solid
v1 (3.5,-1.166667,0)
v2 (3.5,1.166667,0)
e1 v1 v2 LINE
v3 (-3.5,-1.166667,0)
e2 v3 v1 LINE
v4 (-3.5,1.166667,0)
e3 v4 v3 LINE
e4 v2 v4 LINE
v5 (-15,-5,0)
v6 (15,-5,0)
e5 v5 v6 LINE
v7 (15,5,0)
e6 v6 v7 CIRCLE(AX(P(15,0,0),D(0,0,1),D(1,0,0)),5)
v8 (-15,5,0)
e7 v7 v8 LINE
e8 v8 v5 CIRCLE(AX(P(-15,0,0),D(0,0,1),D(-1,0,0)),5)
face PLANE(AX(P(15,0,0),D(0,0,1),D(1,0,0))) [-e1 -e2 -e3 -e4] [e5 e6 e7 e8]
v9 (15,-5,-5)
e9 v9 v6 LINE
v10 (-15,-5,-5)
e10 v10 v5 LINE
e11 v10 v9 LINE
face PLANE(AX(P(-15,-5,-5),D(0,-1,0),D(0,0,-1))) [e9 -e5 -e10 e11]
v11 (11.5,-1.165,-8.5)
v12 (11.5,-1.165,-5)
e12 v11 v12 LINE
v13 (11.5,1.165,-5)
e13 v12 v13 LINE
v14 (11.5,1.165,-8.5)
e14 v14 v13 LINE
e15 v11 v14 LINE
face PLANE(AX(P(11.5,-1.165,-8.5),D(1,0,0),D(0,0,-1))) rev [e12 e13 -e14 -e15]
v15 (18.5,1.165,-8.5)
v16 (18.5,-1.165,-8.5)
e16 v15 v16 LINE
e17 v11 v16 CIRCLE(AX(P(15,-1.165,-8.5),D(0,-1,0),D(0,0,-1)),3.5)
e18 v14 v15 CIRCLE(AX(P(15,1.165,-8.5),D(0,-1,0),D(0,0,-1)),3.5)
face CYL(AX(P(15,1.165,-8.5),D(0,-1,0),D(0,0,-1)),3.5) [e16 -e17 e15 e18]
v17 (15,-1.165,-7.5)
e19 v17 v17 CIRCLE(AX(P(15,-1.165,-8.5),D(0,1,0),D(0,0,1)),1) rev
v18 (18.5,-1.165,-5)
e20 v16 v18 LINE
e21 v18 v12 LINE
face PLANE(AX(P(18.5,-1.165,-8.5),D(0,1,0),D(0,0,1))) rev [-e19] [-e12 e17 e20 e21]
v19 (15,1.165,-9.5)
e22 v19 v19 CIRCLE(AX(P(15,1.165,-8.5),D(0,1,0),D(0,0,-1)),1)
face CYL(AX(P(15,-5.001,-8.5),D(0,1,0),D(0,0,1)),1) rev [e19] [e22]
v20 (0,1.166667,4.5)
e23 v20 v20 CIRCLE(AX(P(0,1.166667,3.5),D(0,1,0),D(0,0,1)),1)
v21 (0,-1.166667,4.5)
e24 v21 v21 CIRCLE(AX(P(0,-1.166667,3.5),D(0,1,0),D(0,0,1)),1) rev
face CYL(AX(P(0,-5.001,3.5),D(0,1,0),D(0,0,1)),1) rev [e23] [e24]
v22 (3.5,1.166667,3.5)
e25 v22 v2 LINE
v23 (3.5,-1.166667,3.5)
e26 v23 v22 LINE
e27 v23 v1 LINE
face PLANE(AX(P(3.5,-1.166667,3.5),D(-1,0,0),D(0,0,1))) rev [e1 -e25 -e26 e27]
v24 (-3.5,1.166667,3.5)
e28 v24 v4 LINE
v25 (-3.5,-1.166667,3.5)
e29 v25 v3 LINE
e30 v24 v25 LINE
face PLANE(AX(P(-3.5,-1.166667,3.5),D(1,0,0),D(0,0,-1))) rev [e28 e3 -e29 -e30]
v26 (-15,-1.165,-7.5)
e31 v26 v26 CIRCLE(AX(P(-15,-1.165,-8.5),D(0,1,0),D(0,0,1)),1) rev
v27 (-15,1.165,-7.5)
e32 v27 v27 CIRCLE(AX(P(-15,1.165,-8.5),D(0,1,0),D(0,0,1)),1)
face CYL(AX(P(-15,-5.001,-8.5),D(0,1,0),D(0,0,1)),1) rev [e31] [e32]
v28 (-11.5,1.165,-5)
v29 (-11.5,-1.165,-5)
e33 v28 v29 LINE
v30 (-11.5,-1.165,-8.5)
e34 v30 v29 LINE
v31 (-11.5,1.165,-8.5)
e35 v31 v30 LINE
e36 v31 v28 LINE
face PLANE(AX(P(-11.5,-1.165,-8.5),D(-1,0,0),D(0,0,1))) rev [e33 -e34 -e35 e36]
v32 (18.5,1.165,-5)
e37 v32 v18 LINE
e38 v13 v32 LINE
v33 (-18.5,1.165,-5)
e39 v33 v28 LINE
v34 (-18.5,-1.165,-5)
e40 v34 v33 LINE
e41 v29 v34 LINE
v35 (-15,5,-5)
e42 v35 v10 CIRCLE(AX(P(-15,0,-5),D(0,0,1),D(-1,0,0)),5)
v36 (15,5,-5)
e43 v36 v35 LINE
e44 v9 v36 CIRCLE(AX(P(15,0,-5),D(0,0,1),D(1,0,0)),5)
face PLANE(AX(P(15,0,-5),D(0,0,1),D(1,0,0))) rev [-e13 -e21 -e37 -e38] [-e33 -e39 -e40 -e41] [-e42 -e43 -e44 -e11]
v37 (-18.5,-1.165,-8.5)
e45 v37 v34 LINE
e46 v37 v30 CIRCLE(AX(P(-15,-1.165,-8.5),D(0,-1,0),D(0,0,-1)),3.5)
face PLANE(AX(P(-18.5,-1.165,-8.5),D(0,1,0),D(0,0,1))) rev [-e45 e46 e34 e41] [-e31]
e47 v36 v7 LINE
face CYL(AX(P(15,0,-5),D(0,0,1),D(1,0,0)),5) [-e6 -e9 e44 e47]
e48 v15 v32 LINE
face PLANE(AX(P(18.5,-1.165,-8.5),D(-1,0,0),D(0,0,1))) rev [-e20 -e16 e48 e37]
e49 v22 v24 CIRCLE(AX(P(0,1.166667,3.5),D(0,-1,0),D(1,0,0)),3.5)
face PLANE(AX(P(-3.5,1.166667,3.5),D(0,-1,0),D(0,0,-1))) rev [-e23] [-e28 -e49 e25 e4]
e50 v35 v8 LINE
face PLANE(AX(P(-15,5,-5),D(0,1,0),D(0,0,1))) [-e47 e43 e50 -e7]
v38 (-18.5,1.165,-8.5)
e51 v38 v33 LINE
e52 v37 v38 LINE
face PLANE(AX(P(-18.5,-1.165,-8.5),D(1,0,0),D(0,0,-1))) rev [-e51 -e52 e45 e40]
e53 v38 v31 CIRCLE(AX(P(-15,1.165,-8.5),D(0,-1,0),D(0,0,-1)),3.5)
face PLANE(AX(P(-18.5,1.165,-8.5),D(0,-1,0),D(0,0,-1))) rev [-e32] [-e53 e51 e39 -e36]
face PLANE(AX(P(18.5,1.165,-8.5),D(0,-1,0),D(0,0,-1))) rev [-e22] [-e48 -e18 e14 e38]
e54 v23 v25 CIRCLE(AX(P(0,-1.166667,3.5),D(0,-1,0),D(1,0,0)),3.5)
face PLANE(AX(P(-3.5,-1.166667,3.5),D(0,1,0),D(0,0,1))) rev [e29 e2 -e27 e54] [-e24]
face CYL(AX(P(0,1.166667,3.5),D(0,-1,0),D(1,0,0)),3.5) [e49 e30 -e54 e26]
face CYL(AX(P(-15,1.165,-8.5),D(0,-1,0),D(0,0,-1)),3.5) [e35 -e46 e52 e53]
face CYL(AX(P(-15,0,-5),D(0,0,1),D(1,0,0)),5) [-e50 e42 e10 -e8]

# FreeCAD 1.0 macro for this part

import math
import FreeCAD as App
import Part
import Sketcher
from FreeCAD import Vector
Q = App.Units.Quantity

doc = App.newDocument("Part")
params = doc.addObject("Spreadsheet::Sheet", "Params")
for row, (alias, value) in enumerate([
    ("sketch1_radius", "5 mm"),
    ("sketch1_width", "30 mm"),
    ("pad1_length", "5 mm"),
    ("sketch2_width", "7 mm"),
    ("pad2_length", "3.5 mm"),
    ("sketch3_width", "3.5 mm"),
    ("revolution_angle", "180 deg"),
    ("sketch4_diameter", "2 mm"),
    ("sketch5_width", "7 mm"),
    ("sketch5_height", "2.33 mm"),
    ("pad3_length", "3.5 mm"),
    ("sketch6_width", "3.5 mm"),
    ("sketch6_height", "2.33 mm"),
    ("revolution2_angle", "180 deg"),
    ("sketch7_width", "3.5 mm"),
    ("sketch7_height", "2.33 mm"),
    ("revolution3_angle", "180 deg"),
    ("sketch8_diameter", "2 mm"),
    ("sketch9_diameter", "2 mm"),
], start=1):
    params.set(f"A{row}", alias)
    params.set(f"B{row}", "=" + value)
    params.setAlias(f"B{row}", alias)

body = doc.addObject("PartDesign::Body", "Body")

# Sketch on XY plane
sketch1 = body.newObject("Sketcher::SketchObject", "Sketch")
sketch1.AttachmentSupport = (doc.getObject("XY_Plane"), [""])
sketch1.MapMode = "FlatFace"
sketch1.addGeometry(Part.LineSegment(Vector(-15, -5, 0), Vector(15, -5, 0)), False)
sketch1.addGeometry(Part.ArcOfCircle(Part.Circle(Vector(15, 0, 0), Vector(0, 0, 1), 5), math.radians(-90), math.radians(90)), False)
sketch1.addGeometry(Part.LineSegment(Vector(15, 5, 0), Vector(-15, 5, 0)), False)
sketch1.addGeometry(Part.ArcOfCircle(Part.Circle(Vector(-15, 0, 0), Vector(0, 0, 1), 5), math.radians(90), math.radians(270)), False)
sketch1.addConstraint(Sketcher.Constraint("Tangent", 0, 2, 1, 1))
sketch1.addConstraint(Sketcher.Constraint("Tangent", 1, 2, 2, 1))
sketch1.addConstraint(Sketcher.Constraint("Tangent", 2, 2, 3, 1))
sketch1.addConstraint(Sketcher.Constraint("Tangent", 3, 2, 0, 1))
sketch1.addConstraint(Sketcher.Constraint("Horizontal", 0))
sketch1.addConstraint(Sketcher.Constraint("Horizontal", 2))
sketch1.addConstraint(Sketcher.Constraint("Symmetric", 1, 3, 3, 3, -1, 1))
sketch1.addConstraint(Sketcher.Constraint("Radius", 1, Q("5 mm")))
sketch1.addConstraint(Sketcher.Constraint("DistanceX", 0, 1, 0, 2, Q("30 mm")))
sketch1.setExpression("Constraints[7]", "Params.sketch1_radius")
sketch1.setExpression("Constraints[8]", "Params.sketch1_width")
pad1 = body.newObject("PartDesign::Pad", "Pad")
pad1.Profile = sketch1
pad1.setExpression("Length", "Params.pad1_length")
pad1.Reversed = True

# Sketch on XY plane
sketch2 = body.newObject("Sketcher::SketchObject", "Sketch001")
sketch2.AttachmentSupport = (doc.getObject("XY_Plane"), [""])
sketch2.MapMode = "FlatFace"
sketch2.addGeometry(Part.LineSegment(Vector(-3.5, 1.2, 0), Vector(-3.5, -1.2, 0)), False)
sketch2.addGeometry(Part.LineSegment(Vector(-3.5, -1.2, 0), Vector(3.5, -1.2, 0)), False)
sketch2.addGeometry(Part.LineSegment(Vector(3.5, -1.2, 0), Vector(3.5, 1.2, 0)), False)
sketch2.addGeometry(Part.LineSegment(Vector(3.5, 1.2, 0), Vector(-3.5, 1.2, 0)), False)
sketch2.addConstraint(Sketcher.Constraint("Coincident", 0, 2, 1, 1))
sketch2.addConstraint(Sketcher.Constraint("Coincident", 1, 2, 2, 1))
sketch2.addConstraint(Sketcher.Constraint("Coincident", 2, 2, 3, 1))
sketch2.addConstraint(Sketcher.Constraint("Coincident", 3, 2, 0, 1))
sketch2.addConstraint(Sketcher.Constraint("Vertical", 0))
sketch2.addConstraint(Sketcher.Constraint("Horizontal", 1))
sketch2.addConstraint(Sketcher.Constraint("Vertical", 2))
sketch2.addConstraint(Sketcher.Constraint("Horizontal", 3))
sketch2.addConstraint(Sketcher.Constraint("Symmetric", 0, 2, 2, 2, -1, 1))
sketch2.addConstraint(Sketcher.Constraint("DistanceX", 1, 1, 1, 2, Q("7 mm")))
sketch2.addConstraint(Sketcher.Constraint("DistanceY", 0, 2, 0, 1, Q("2.333333 mm")))
sketch2.setExpression("Constraints[9]", "Params.sketch2_width")
pad2 = body.newObject("PartDesign::Pad", "Pad001")
pad2.Profile = sketch2
pad2.setExpression("Length", "Params.pad2_length")

# Sketch on XY plane
sketch3 = body.newObject("Sketcher::SketchObject", "Sketch002")
sketch3.AttachmentSupport = (doc.getObject("XY_Plane"), [""])
sketch3.MapMode = "FlatFace"
sketch3.AttachmentOffset = App.Placement(Vector(0, 0, 3.5), App.Rotation())
sketch3.addGeometry(Part.LineSegment(Vector(-3.5, 1.2, 0), Vector(-3.5, -1.2, 0)), False)
sketch3.addGeometry(Part.LineSegment(Vector(-3.5, -1.2, 0), Vector(0, -1.2, 0)), False)
sketch3.addGeometry(Part.LineSegment(Vector(0, -1.2, 0), Vector(0, 1.2, 0)), False)
sketch3.addGeometry(Part.LineSegment(Vector(0, 1.2, 0), Vector(-3.5, 1.2, 0)), False)
sketch3.addConstraint(Sketcher.Constraint("Coincident", 0, 2, 1, 1))
sketch3.addConstraint(Sketcher.Constraint("Coincident", 1, 2, 2, 1))
sketch3.addConstraint(Sketcher.Constraint("Coincident", 2, 2, 3, 1))
sketch3.addConstraint(Sketcher.Constraint("Coincident", 3, 2, 0, 1))
sketch3.addConstraint(Sketcher.Constraint("Vertical", 0))
sketch3.addConstraint(Sketcher.Constraint("Horizontal", 1))
sketch3.addConstraint(Sketcher.Constraint("Vertical", 2))
sketch3.addConstraint(Sketcher.Constraint("Horizontal", 3))
sketch3.addConstraint(Sketcher.Constraint("Symmetric", 1, 2, 2, 2, -1, 1))
sketch3.addConstraint(Sketcher.Constraint("DistanceX", 1, 1, 1, 2, Q("3.5 mm")))
sketch3.addConstraint(Sketcher.Constraint("DistanceY", 0, 2, 0, 1, Q("2.333333 mm")))
sketch3.setExpression("Constraints[9]", "Params.sketch3_width")
revolution = body.newObject("PartDesign::Revolution", "Revolution")
revolution.Profile = sketch3
revolution.ReferenceAxis = (sketch3, ["V_Axis"])
revolution.setExpression("Angle", "Params.revolution_angle")

# Sketch on XZ plane
sketch4 = body.newObject("Sketcher::SketchObject", "Sketch003")
sketch4.AttachmentSupport = (doc.getObject("XZ_Plane"), [""])
sketch4.MapMode = "FlatFace"
sketch4.AttachmentOffset = App.Placement(Vector(0, 0, -1.166667), App.Rotation())
sketch4.addGeometry(Part.Circle(Vector(0, 3.5, 0), Vector(0, 0, 1), 1), False)
sketch4.addConstraint(Sketcher.Constraint("PointOnObject", 0, 3, -2))
sketch4.addConstraint(Sketcher.Constraint("Diameter", 0, Q("2 mm")))
sketch4.addConstraint(Sketcher.Constraint("DistanceY", -1, 1, 0, 3, Q("3.5 mm")))
sketch4.setExpression("Constraints[1]", "Params.sketch4_diameter")
pocket1 = body.newObject("PartDesign::Pocket", "Pocket")
pocket1.Profile = sketch4
pocket1.Type = "UpToFirst"
pocket1.Reversed = True

# Sketch on XY plane
sketch5 = body.newObject("Sketcher::SketchObject", "Sketch004")
sketch5.AttachmentSupport = (doc.getObject("XY_Plane"), [""])
sketch5.MapMode = "FlatFace"
sketch5.AttachmentOffset = App.Placement(Vector(0, 0, -5), App.Rotation())
sketch5.addGeometry(Part.LineSegment(Vector(18.5, 1.2, 0), Vector(18.5, -1.2, 0)), False)
sketch5.addGeometry(Part.LineSegment(Vector(18.5, -1.2, 0), Vector(11.5, -1.2, 0)), False)
sketch5.addGeometry(Part.LineSegment(Vector(11.5, -1.2, 0), Vector(11.5, 1.2, 0)), False)
sketch5.addGeometry(Part.LineSegment(Vector(11.5, 1.2, 0), Vector(18.5, 1.2, 0)), False)
sketch5.addGeometry(Part.LineSegment(Vector(-11.5, 1.2, 0), Vector(-11.5, -1.2, 0)), False)
sketch5.addGeometry(Part.LineSegment(Vector(-11.5, -1.2, 0), Vector(-18.5, -1.2, 0)), False)
sketch5.addGeometry(Part.LineSegment(Vector(-18.5, -1.2, 0), Vector(-18.5, 1.2, 0)), False)
sketch5.addGeometry(Part.LineSegment(Vector(-18.5, 1.2, 0), Vector(-11.5, 1.2, 0)), False)
sketch5.addConstraint(Sketcher.Constraint("Coincident", 0, 2, 1, 1))
sketch5.addConstraint(Sketcher.Constraint("Coincident", 1, 2, 2, 1))
sketch5.addConstraint(Sketcher.Constraint("Coincident", 2, 2, 3, 1))
sketch5.addConstraint(Sketcher.Constraint("Coincident", 3, 2, 0, 1))
sketch5.addConstraint(Sketcher.Constraint("Coincident", 4, 2, 5, 1))
sketch5.addConstraint(Sketcher.Constraint("Coincident", 5, 2, 6, 1))
sketch5.addConstraint(Sketcher.Constraint("Coincident", 6, 2, 7, 1))
sketch5.addConstraint(Sketcher.Constraint("Coincident", 7, 2, 4, 1))
sketch5.addConstraint(Sketcher.Constraint("Vertical", 0))
sketch5.addConstraint(Sketcher.Constraint("Horizontal", 1))
sketch5.addConstraint(Sketcher.Constraint("Vertical", 2))
sketch5.addConstraint(Sketcher.Constraint("Horizontal", 3))
sketch5.addConstraint(Sketcher.Constraint("Vertical", 4))
sketch5.addConstraint(Sketcher.Constraint("Horizontal", 5))
sketch5.addConstraint(Sketcher.Constraint("Vertical", 6))
sketch5.addConstraint(Sketcher.Constraint("Horizontal", 7))
sketch5.addConstraint(Sketcher.Constraint("Symmetric", 2, 2, 4, 2, -1, 1))
sketch5.addConstraint(Sketcher.Constraint("Symmetric", 0, 2, 6, 2, -1, 1))
sketch5.addConstraint(Sketcher.Constraint("Horizontal", 1, 2, 4, 2))
sketch5.addConstraint(Sketcher.Constraint("DistanceX", 1, 2, 1, 1, Q("7 mm")))
sketch5.addConstraint(Sketcher.Constraint("DistanceX", 4, 2, 1, 2, Q("23 mm")))
sketch5.addConstraint(Sketcher.Constraint("DistanceY", 0, 2, 0, 1, Q("2.33 mm")))
sketch5.setExpression("Constraints[19]", "Params.sketch5_width")
sketch5.setExpression("Constraints[21]", "Params.sketch5_height")
pad3 = body.newObject("PartDesign::Pad", "Pad002")
pad3.Profile = sketch5
pad3.setExpression("Length", "Params.pad3_length")
pad3.Reversed = True

# Sketch on XY plane
sketch6 = body.newObject("Sketcher::SketchObject", "Sketch005")
sketch6.AttachmentSupport = (doc.getObject("XY_Plane"), [""])
sketch6.MapMode = "FlatFace"
sketch6.AttachmentOffset = App.Placement(Vector(0, 0, -8.5), App.Rotation())
sketch6.addGeometry(Part.LineSegment(Vector(18.5, 1.2, 0), Vector(18.5, -1.2, 0)), False)
sketch6.addGeometry(Part.LineSegment(Vector(18.5, -1.2, 0), Vector(15, -1.2, 0)), False)
sketch6.addGeometry(Part.LineSegment(Vector(15, -1.2, 0), Vector(15, 1.2, 0)), False)
sketch6.addGeometry(Part.LineSegment(Vector(15, 1.2, 0), Vector(18.5, 1.2, 0)), False)
sketch6.addGeometry(Part.LineSegment(Vector(15, -1.2, 0), Vector(15, 1.2, 0)), True)  # axis
sketch6.addConstraint(Sketcher.Constraint("Coincident", 0, 2, 1, 1))
sketch6.addConstraint(Sketcher.Constraint("Coincident", 1, 2, 2, 1))
sketch6.addConstraint(Sketcher.Constraint("Coincident", 2, 2, 3, 1))
sketch6.addConstraint(Sketcher.Constraint("Coincident", 3, 2, 0, 1))
sketch6.addConstraint(Sketcher.Constraint("Vertical", 0))
sketch6.addConstraint(Sketcher.Constraint("Horizontal", 1))
sketch6.addConstraint(Sketcher.Constraint("Vertical", 2))
sketch6.addConstraint(Sketcher.Constraint("Horizontal", 3))
sketch6.addConstraint(Sketcher.Constraint("Vertical", 4))
sketch6.addConstraint(Sketcher.Constraint("Coincident", 4, 1, 1, 2))
sketch6.addConstraint(Sketcher.Constraint("Horizontal", 3, 2, 4, 2))
sketch6.addConstraint(Sketcher.Constraint("DistanceX", 1, 2, 1, 1, Q("3.5 mm")))
sketch6.addConstraint(Sketcher.Constraint("DistanceX", -1, 1, 1, 2, Q("15 mm")))
sketch6.addConstraint(Sketcher.Constraint("DistanceY", 0, 2, 0, 1, Q("2.33 mm")))
sketch6.addConstraint(Sketcher.Constraint("DistanceY", 0, 2, -1, 1, Q("1.165 mm")))
sketch6.setExpression("Constraints[11]", "Params.sketch6_width")
sketch6.setExpression("Constraints[13]", "Params.sketch6_height")
revolution2 = body.newObject("PartDesign::Revolution", "Revolution001")
revolution2.Profile = sketch6
revolution2.ReferenceAxis = (sketch6, ["Axis0"])
revolution2.setExpression("Angle", "Params.revolution2_angle")

# Sketch on XY plane
sketch7 = body.newObject("Sketcher::SketchObject", "Sketch006")
sketch7.AttachmentSupport = (doc.getObject("XY_Plane"), [""])
sketch7.MapMode = "FlatFace"
sketch7.AttachmentOffset = App.Placement(Vector(0, 0, -8.5), App.Rotation())
sketch7.addGeometry(Part.LineSegment(Vector(-11.5, 1.2, 0), Vector(-11.5, -1.2, 0)), False)
sketch7.addGeometry(Part.LineSegment(Vector(-11.5, -1.2, 0), Vector(-15, -1.2, 0)), False)
sketch7.addGeometry(Part.LineSegment(Vector(-15, -1.2, 0), Vector(-15, 1.2, 0)), False)
sketch7.addGeometry(Part.LineSegment(Vector(-15, 1.2, 0), Vector(-11.5, 1.2, 0)), False)
sketch7.addGeometry(Part.LineSegment(Vector(-15, -1.2, 0), Vector(-15, 1.2, 0)), True)  # axis
sketch7.addConstraint(Sketcher.Constraint("Coincident", 0, 2, 1, 1))
sketch7.addConstraint(Sketcher.Constraint("Coincident", 1, 2, 2, 1))
sketch7.addConstraint(Sketcher.Constraint("Coincident", 2, 2, 3, 1))
sketch7.addConstraint(Sketcher.Constraint("Coincident", 3, 2, 0, 1))
sketch7.addConstraint(Sketcher.Constraint("Vertical", 0))
sketch7.addConstraint(Sketcher.Constraint("Horizontal", 1))
sketch7.addConstraint(Sketcher.Constraint("Vertical", 2))
sketch7.addConstraint(Sketcher.Constraint("Horizontal", 3))
sketch7.addConstraint(Sketcher.Constraint("Vertical", 4))
sketch7.addConstraint(Sketcher.Constraint("Coincident", 4, 1, 1, 2))
sketch7.addConstraint(Sketcher.Constraint("Horizontal", 3, 2, 4, 2))
sketch7.addConstraint(Sketcher.Constraint("DistanceX", 1, 2, 1, 1, Q("3.5 mm")))
sketch7.addConstraint(Sketcher.Constraint("DistanceX", 1, 2, -1, 1, Q("15 mm")))
sketch7.addConstraint(Sketcher.Constraint("DistanceY", 0, 2, 0, 1, Q("2.33 mm")))
sketch7.addConstraint(Sketcher.Constraint("DistanceY", 0, 2, -1, 1, Q("1.165 mm")))
sketch7.setExpression("Constraints[11]", "Params.sketch7_width")
sketch7.setExpression("Constraints[13]", "Params.sketch7_height")
revolution3 = body.newObject("PartDesign::Revolution", "Revolution002")
revolution3.Profile = sketch7
revolution3.ReferenceAxis = (sketch7, ["Axis0"])
revolution3.setExpression("Angle", "Params.revolution3_angle")

# Sketch on XZ plane
sketch8 = body.newObject("Sketcher::SketchObject", "Sketch007")
sketch8.AttachmentSupport = (doc.getObject("XZ_Plane"), [""])
sketch8.MapMode = "FlatFace"
sketch8.AttachmentOffset = App.Placement(Vector(0, 0, -1.165), App.Rotation())
sketch8.addGeometry(Part.Circle(Vector(-15, -8.5, 0), Vector(0, 0, 1), 1), False)
sketch8.addConstraint(Sketcher.Constraint("Diameter", 0, Q("2 mm")))
sketch8.addConstraint(Sketcher.Constraint("DistanceX", 0, 3, -1, 1, Q("15 mm")))
sketch8.addConstraint(Sketcher.Constraint("DistanceY", 0, 3, -1, 1, Q("8.5 mm")))
sketch8.setExpression("Constraints[0]", "Params.sketch8_diameter")
pocket2 = body.newObject("PartDesign::Pocket", "Pocket001")
pocket2.Profile = sketch8
pocket2.Type = "UpToFirst"
pocket2.Reversed = True

# Sketch on XZ plane
sketch9 = body.newObject("Sketcher::SketchObject", "Sketch008")
sketch9.AttachmentSupport = (doc.getObject("XZ_Plane"), [""])
sketch9.MapMode = "FlatFace"
sketch9.AttachmentOffset = App.Placement(Vector(0, 0, -1.165), App.Rotation())
sketch9.addGeometry(Part.Circle(Vector(15, -8.5, 0), Vector(0, 0, 1), 1), False)
sketch9.addConstraint(Sketcher.Constraint("Diameter", 0, Q("2 mm")))
sketch9.addConstraint(Sketcher.Constraint("DistanceX", -1, 1, 0, 3, Q("15 mm")))
sketch9.addConstraint(Sketcher.Constraint("DistanceY", 0, 3, -1, 1, Q("8.5 mm")))
sketch9.setExpression("Constraints[0]", "Params.sketch9_diameter")
pocket3 = body.newObject("PartDesign::Pocket", "Pocket002")
pocket3.Profile = sketch9
pocket3.Type = "UpToFirst"
pocket3.Reversed = True

doc.recompute()
